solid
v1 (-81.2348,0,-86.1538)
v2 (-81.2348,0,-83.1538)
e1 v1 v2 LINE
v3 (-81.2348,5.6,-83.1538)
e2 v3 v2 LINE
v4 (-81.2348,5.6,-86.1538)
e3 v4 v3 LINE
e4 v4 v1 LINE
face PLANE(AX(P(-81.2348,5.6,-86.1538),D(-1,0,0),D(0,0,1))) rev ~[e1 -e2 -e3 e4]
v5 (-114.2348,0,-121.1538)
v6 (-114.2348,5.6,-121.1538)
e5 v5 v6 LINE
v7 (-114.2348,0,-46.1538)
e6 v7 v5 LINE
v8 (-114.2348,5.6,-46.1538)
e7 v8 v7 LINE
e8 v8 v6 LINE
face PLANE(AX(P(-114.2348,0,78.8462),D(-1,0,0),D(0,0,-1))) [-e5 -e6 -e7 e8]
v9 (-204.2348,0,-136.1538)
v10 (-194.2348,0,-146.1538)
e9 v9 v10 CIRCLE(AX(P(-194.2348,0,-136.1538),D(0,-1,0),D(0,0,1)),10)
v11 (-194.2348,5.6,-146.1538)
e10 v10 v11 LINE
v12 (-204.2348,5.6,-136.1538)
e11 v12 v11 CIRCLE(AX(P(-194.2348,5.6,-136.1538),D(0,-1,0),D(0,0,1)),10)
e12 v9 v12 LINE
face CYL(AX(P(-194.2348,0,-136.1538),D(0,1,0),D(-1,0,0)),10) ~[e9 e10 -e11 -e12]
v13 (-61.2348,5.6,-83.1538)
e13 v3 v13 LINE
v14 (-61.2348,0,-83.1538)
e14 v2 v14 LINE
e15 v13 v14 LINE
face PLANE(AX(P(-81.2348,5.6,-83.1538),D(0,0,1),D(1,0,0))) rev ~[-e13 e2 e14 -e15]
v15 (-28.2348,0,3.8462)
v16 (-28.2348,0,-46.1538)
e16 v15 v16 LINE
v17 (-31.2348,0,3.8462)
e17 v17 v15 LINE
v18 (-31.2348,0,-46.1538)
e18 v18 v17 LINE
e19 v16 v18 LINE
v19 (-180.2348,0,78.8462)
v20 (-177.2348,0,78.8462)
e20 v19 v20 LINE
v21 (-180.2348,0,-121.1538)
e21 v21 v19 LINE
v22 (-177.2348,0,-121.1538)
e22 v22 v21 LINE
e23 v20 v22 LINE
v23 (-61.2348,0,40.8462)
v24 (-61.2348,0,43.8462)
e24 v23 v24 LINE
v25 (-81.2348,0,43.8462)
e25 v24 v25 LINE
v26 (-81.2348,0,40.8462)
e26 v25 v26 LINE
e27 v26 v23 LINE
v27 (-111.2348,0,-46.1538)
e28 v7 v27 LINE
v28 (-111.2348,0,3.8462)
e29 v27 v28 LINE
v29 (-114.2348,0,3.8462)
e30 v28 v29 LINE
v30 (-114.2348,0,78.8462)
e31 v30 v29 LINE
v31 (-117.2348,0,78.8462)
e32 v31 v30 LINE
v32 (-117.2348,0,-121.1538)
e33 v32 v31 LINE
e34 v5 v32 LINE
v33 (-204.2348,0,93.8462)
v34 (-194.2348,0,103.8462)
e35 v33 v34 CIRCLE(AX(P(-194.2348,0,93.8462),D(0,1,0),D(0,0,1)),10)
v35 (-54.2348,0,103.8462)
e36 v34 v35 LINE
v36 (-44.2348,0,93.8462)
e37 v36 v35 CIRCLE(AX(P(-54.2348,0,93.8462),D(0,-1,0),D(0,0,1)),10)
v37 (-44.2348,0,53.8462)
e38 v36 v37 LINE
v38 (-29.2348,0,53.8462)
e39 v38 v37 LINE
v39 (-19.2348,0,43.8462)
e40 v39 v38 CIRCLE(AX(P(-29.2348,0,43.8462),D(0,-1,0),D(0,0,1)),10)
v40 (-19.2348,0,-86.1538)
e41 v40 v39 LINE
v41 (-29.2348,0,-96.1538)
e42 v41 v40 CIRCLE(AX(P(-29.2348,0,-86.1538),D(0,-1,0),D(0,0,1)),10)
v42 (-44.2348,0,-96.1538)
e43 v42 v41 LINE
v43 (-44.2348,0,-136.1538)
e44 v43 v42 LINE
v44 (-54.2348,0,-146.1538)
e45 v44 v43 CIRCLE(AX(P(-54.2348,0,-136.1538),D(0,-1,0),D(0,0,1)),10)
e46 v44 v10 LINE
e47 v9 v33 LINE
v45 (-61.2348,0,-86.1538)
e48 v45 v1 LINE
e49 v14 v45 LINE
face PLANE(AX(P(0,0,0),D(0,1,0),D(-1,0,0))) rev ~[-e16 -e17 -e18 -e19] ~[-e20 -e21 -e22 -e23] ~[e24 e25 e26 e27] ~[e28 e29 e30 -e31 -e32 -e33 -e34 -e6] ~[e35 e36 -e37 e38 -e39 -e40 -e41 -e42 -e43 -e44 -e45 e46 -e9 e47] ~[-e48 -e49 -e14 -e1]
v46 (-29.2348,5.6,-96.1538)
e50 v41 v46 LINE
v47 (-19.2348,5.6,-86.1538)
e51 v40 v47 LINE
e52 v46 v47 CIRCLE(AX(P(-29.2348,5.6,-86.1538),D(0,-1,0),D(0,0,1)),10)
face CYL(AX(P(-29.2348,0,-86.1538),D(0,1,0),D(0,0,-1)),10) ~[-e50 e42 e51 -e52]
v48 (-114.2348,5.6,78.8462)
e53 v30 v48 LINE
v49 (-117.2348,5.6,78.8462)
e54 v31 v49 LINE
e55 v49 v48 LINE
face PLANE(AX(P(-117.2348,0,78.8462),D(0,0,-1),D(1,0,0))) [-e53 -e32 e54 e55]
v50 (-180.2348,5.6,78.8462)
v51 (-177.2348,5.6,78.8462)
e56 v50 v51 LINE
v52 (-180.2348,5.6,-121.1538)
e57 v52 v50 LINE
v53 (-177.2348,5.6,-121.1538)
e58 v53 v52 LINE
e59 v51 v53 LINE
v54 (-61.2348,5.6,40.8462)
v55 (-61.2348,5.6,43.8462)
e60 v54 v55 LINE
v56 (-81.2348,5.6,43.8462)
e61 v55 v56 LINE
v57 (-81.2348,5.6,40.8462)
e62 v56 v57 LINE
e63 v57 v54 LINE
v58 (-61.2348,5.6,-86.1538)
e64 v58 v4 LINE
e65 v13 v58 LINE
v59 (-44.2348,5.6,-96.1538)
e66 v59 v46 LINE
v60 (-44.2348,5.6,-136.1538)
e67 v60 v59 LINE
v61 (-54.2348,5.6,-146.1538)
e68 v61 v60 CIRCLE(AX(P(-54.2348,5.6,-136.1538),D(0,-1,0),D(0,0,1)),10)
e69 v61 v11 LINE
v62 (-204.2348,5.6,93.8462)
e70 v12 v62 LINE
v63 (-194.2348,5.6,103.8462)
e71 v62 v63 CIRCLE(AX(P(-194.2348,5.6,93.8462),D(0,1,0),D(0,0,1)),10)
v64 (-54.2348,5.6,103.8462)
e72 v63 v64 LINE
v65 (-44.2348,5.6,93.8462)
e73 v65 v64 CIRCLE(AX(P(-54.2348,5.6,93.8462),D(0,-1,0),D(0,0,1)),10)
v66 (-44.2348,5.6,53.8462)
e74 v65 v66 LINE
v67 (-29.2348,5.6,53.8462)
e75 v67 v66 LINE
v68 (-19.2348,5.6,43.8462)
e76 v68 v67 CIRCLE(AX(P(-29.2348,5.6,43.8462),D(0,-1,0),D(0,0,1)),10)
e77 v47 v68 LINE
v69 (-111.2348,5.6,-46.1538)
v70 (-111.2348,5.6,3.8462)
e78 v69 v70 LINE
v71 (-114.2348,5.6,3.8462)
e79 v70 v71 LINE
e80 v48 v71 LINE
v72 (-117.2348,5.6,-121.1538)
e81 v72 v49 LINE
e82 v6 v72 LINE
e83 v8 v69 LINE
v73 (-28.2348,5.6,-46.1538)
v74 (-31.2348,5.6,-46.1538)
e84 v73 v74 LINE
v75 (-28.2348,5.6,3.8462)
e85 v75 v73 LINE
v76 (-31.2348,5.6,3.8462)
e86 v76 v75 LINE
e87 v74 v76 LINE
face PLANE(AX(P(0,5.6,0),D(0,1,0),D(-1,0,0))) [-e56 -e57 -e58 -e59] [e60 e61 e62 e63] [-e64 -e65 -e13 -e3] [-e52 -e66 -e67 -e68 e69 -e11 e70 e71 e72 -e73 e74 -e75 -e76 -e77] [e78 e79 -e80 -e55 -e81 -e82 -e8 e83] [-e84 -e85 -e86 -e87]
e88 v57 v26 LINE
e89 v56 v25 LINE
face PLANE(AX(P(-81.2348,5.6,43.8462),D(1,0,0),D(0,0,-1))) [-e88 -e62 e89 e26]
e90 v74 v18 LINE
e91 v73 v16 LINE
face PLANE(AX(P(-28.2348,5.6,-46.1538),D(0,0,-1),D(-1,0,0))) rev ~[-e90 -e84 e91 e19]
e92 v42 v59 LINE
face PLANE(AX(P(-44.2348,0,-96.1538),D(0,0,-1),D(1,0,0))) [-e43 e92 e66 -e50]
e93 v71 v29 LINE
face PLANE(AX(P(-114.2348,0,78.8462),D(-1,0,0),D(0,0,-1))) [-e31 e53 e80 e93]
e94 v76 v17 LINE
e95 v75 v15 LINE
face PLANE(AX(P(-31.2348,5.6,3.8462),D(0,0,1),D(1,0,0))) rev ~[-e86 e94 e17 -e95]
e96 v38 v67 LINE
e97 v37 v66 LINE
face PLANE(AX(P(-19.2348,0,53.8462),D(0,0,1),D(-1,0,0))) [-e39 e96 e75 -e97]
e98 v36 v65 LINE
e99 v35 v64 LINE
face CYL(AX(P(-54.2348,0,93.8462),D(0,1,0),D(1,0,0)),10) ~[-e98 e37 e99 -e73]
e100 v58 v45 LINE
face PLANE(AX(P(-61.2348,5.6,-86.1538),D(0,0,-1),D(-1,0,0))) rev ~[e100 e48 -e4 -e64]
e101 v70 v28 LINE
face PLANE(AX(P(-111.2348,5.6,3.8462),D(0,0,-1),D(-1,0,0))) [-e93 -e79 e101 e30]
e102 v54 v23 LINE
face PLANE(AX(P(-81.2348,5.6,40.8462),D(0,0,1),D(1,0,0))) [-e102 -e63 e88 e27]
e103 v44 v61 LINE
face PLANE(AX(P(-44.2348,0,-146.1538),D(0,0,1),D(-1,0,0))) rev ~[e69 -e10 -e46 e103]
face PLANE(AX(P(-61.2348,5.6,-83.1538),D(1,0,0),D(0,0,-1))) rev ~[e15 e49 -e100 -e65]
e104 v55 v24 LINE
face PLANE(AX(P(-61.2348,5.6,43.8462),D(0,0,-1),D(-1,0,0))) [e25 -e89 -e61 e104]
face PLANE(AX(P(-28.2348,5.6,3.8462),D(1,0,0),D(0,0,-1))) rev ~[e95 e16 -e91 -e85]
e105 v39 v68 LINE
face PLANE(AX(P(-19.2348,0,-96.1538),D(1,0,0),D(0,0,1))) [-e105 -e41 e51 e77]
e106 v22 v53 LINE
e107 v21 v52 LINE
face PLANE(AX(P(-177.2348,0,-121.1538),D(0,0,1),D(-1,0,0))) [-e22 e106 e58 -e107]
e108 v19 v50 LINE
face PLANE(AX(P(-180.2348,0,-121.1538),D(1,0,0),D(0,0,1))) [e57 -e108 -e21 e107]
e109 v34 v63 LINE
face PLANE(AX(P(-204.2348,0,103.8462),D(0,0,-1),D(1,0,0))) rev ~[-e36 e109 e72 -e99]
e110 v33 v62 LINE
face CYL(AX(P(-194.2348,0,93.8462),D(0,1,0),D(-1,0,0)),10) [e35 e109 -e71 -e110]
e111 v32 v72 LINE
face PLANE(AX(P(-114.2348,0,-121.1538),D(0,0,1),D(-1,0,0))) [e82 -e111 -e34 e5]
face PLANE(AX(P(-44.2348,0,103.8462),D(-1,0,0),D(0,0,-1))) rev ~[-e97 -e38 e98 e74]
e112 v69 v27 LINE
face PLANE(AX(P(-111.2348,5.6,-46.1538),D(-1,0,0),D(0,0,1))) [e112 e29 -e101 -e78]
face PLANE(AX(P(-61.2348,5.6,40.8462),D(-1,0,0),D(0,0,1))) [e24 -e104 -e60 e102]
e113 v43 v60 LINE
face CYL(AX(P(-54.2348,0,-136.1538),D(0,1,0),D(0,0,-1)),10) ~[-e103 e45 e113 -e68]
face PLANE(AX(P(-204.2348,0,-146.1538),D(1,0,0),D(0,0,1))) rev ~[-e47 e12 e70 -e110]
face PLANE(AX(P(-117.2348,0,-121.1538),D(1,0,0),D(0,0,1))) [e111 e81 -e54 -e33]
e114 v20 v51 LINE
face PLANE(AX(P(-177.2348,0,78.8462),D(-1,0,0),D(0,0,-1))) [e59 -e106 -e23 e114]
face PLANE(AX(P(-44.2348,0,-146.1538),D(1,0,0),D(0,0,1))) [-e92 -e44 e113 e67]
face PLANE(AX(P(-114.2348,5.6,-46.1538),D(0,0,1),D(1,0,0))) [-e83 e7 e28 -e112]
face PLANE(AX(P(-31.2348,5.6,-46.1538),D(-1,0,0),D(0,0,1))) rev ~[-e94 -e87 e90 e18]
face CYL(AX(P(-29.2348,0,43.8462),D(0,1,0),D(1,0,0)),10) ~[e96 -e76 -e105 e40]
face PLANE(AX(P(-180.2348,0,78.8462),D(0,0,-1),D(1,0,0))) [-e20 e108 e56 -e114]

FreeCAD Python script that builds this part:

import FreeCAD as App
import Part
import Sketcher
Q = App.Units.Quantity


def edges_at(feature, points):
    """Names of the edges that pass closest to the given points."""
    edges = feature.Shape.Edges
    near = lambda p: min(range(len(edges)), key=lambda i: edges[i].distToShape(Part.Vertex(*p))[0])
    return sorted({f"Edge{near(p) + 1}" for p in points})

doc = App.newDocument("Part")
params = doc.addObject("Spreadsheet::Sheet", "Params")
for row, (alias, value) in enumerate([
    ("sketch1_width", "160 mm"),
    ("sketch1_width2", "25 mm"),
    ("sketch1_width3", "3 mm"),
    ("sketch1_height", "250 mm"),
    ("sketch1_height2", "150 mm"),
    ("pad1_length", "5.6 mm"),
    ("fillet_radius", "10 mm"),
    ("sketch2_width", "3 mm"),
    ("sketch2_width2", "20 mm"),
    ("sketch2_height", "50 mm"),
    ("pocket1_length", "10 mm"),
], start=1):
    params.set(f"A{row}", alias)
    params.set(f"B{row}", "=" + value)
    params.setAlias(f"B{row}", alias)

body = doc.addObject("PartDesign::Body", "Body")

sketch1 = body.newObject("Sketcher::SketchObject", "Sketch")
sketch1.AttachmentSupport = (doc.getObject("XZ_Plane"), [""])
sketch1.MapMode = "FlatFace"
sketch1.addGeometry([
    Part.LineSegment(App.Vector(-204.2, -146.2, 0), App.Vector(-204.2, 103.8, 0)),
    Part.LineSegment(App.Vector(-204.2, 103.8, 0), App.Vector(-44.2, 103.8, 0)),
    Part.LineSegment(App.Vector(-44.2, 103.8, 0), App.Vector(-44.2, 53.8, 0)),
    Part.LineSegment(App.Vector(-44.2, 53.8, 0), App.Vector(-19.2, 53.8, 0)),
    Part.LineSegment(App.Vector(-19.2, 53.8, 0), App.Vector(-19.2, -96.2, 0)),
    Part.LineSegment(App.Vector(-19.2, -96.2, 0), App.Vector(-44.2, -96.2, 0)),
    Part.LineSegment(App.Vector(-44.2, -96.2, 0), App.Vector(-44.2, -146.2, 0)),
    Part.LineSegment(App.Vector(-44.2, -146.2, 0), App.Vector(-204.2, -146.2, 0)),
    Part.LineSegment(App.Vector(-114.2, 78.8, 0), App.Vector(-117.2, 78.8, 0)),
    Part.LineSegment(App.Vector(-117.2, 78.8, 0), App.Vector(-117.2, -121.2, 0)),
    Part.LineSegment(App.Vector(-117.2, -121.2, 0), App.Vector(-114.2, -121.2, 0)),
    Part.LineSegment(App.Vector(-114.2, -121.2, 0), App.Vector(-114.2, 78.8, 0)),
    Part.LineSegment(App.Vector(-177.2, 78.8, 0), App.Vector(-180.2, 78.8, 0)),
    Part.LineSegment(App.Vector(-180.2, 78.8, 0), App.Vector(-180.2, -121.2, 0)),
    Part.LineSegment(App.Vector(-180.2, -121.2, 0), App.Vector(-177.2, -121.2, 0)),
    Part.LineSegment(App.Vector(-177.2, -121.2, 0), App.Vector(-177.2, 78.8, 0)),
], False)
sketch1.addConstraint([
    Sketcher.Constraint("Coincident", 0, 2, 1, 1),
    Sketcher.Constraint("Coincident", 1, 2, 2, 1),
    Sketcher.Constraint("Coincident", 2, 2, 3, 1),
    Sketcher.Constraint("Coincident", 3, 2, 4, 1),
    Sketcher.Constraint("Coincident", 4, 2, 5, 1),
    Sketcher.Constraint("Coincident", 5, 2, 6, 1),
    Sketcher.Constraint("Coincident", 6, 2, 7, 1),
    Sketcher.Constraint("Coincident", 7, 2, 0, 1),
    Sketcher.Constraint("Coincident", 8, 2, 9, 1),
    Sketcher.Constraint("Coincident", 9, 2, 10, 1),
    Sketcher.Constraint("Coincident", 10, 2, 11, 1),
    Sketcher.Constraint("Coincident", 11, 2, 8, 1),
    Sketcher.Constraint("Coincident", 12, 2, 13, 1),
    Sketcher.Constraint("Coincident", 13, 2, 14, 1),
    Sketcher.Constraint("Coincident", 14, 2, 15, 1),
    Sketcher.Constraint("Coincident", 15, 2, 12, 1),
    Sketcher.Constraint("Vertical", 0),
    Sketcher.Constraint("Horizontal", 1),
    Sketcher.Constraint("Vertical", 2),
    Sketcher.Constraint("Horizontal", 3),
    Sketcher.Constraint("Vertical", 4),
    Sketcher.Constraint("Horizontal", 5),
    Sketcher.Constraint("Vertical", 6),
    Sketcher.Constraint("Horizontal", 7),
    Sketcher.Constraint("Horizontal", 8),
    Sketcher.Constraint("Vertical", 9),
    Sketcher.Constraint("Horizontal", 10),
    Sketcher.Constraint("Vertical", 11),
    Sketcher.Constraint("Horizontal", 12),
    Sketcher.Constraint("Vertical", 13),
    Sketcher.Constraint("Horizontal", 14),
    Sketcher.Constraint("Vertical", 15),
    Sketcher.Constraint("Horizontal", 11, 2, 12, 2),
    Sketcher.Constraint("Horizontal", 10, 2, 13, 2),
    Sketcher.Constraint("Vertical", 2, 2, 5, 2),
    Sketcher.Constraint("Equal", 10, 12),
    Sketcher.Constraint("Equal", 2, 6),
    Sketcher.Constraint("DistanceX", 1, 1, 1, 2, Q("160 mm")),
    Sketcher.Constraint("DistanceX", 3, 1, 3, 2, Q("25 mm")),
    Sketcher.Constraint("DistanceX", 8, 2, 8, 1, Q("3 mm")),
    Sketcher.Constraint("DistanceY", 0, 1, 0, 2, Q("250 mm")),
    Sketcher.Constraint("DistanceY", 4, 2, 4, 1, Q("150 mm")),
    Sketcher.Constraint("DistanceY", 9, 2, 9, 1, Q("200 mm")),
    Sketcher.Constraint("DistanceY", 8, 2, 1, 2, Q("25 mm")),
    Sketcher.Constraint("DistanceX", 10, 2, 5, 2, Q("70 mm")),
    Sketcher.Constraint("DistanceX", 14, 2, 9, 2, Q("60 mm")),
    Sketcher.Constraint("DistanceX", 0, 2, -1, 1, Q("204.2348 mm")),
    Sketcher.Constraint("DistanceY", -1, 1, 0, 2, Q("103.8462 mm")),
])
sketch1.setExpression("Constraints[37]", "Params.sketch1_width")
sketch1.setExpression("Constraints[38]", "Params.sketch1_width2")
sketch1.setExpression("Constraints[39]", "Params.sketch1_width3")
sketch1.setExpression("Constraints[40]", "Params.sketch1_height")
sketch1.setExpression("Constraints[41]", "Params.sketch1_height2")
pad1 = body.newObject("PartDesign::Pad", "Pad")
pad1.Profile = sketch1
pad1.setExpression("Length", "Params.pad1_length")
pad1.Reversed = True
doc.recompute()

fillet = body.newObject("PartDesign::Fillet", "Fillet")
fillet.Base = (pad1, edges_at(pad1, [
    (-19.235, 2.8, 53.846),
    (-19.235, 2.8, -96.154),
    (-44.235, 2.8, 103.846),
    (-44.235, 2.8, -146.154),
    (-204.235, 2.8, -146.154),
    (-204.235, 2.8, 103.846),
]))
fillet.setExpression("Radius", "Params.fillet_radius")

sketch2 = body.newObject("Sketcher::SketchObject", "Sketch001")
sketch2.AttachmentSupport = (doc.getObject("XZ_Plane"), [""])
sketch2.MapMode = "FlatFace"
sketch2.AttachmentOffset = App.Placement(App.Vector(0, 0, -5.6), App.Rotation())
sketch2.addGeometry([
    Part.LineSegment(App.Vector(-111.2, -46.2, 0), App.Vector(-114.2, -46.2, 0)),
    Part.LineSegment(App.Vector(-114.2, -46.2, 0), App.Vector(-114.2, 3.8, 0)),
    Part.LineSegment(App.Vector(-114.2, 3.8, 0), App.Vector(-111.2, 3.8, 0)),
    Part.LineSegment(App.Vector(-111.2, 3.8, 0), App.Vector(-111.2, -46.2, 0)),
    Part.LineSegment(App.Vector(-61.2, -86.2, 0), App.Vector(-81.2, -86.2, 0)),
    Part.LineSegment(App.Vector(-81.2, -86.2, 0), App.Vector(-81.2, -83.2, 0)),
    Part.LineSegment(App.Vector(-81.2, -83.2, 0), App.Vector(-61.2, -83.2, 0)),
    Part.LineSegment(App.Vector(-61.2, -83.2, 0), App.Vector(-61.2, -86.2, 0)),
    Part.LineSegment(App.Vector(-81.2, 43.8, 0), App.Vector(-61.2, 43.8, 0)),
    Part.LineSegment(App.Vector(-61.2, 43.8, 0), App.Vector(-61.2, 40.8, 0)),
    Part.LineSegment(App.Vector(-61.2, 40.8, 0), App.Vector(-81.2, 40.8, 0)),
    Part.LineSegment(App.Vector(-81.2, 40.8, 0), App.Vector(-81.2, 43.8, 0)),
    Part.LineSegment(App.Vector(-28.2, -46.2, 0), App.Vector(-31.2, -46.2, 0)),
    Part.LineSegment(App.Vector(-31.2, -46.2, 0), App.Vector(-31.2, 3.8, 0)),
    Part.LineSegment(App.Vector(-31.2, 3.8, 0), App.Vector(-28.2, 3.8, 0)),
    Part.LineSegment(App.Vector(-28.2, 3.8, 0), App.Vector(-28.2, -46.2, 0)),
], False)
sketch2.addConstraint([
    Sketcher.Constraint("Coincident", 0, 2, 1, 1),
    Sketcher.Constraint("Coincident", 1, 2, 2, 1),
    Sketcher.Constraint("Coincident", 2, 2, 3, 1),
    Sketcher.Constraint("Coincident", 3, 2, 0, 1),
    Sketcher.Constraint("Coincident", 4, 2, 5, 1),
    Sketcher.Constraint("Coincident", 5, 2, 6, 1),
    Sketcher.Constraint("Coincident", 6, 2, 7, 1),
    Sketcher.Constraint("Coincident", 7, 2, 4, 1),
    Sketcher.Constraint("Coincident", 8, 2, 9, 1),
    Sketcher.Constraint("Coincident", 9, 2, 10, 1),
    Sketcher.Constraint("Coincident", 10, 2, 11, 1),
    Sketcher.Constraint("Coincident", 11, 2, 8, 1),
    Sketcher.Constraint("Coincident", 12, 2, 13, 1),
    Sketcher.Constraint("Coincident", 13, 2, 14, 1),
    Sketcher.Constraint("Coincident", 14, 2, 15, 1),
    Sketcher.Constraint("Coincident", 15, 2, 12, 1),
    Sketcher.Constraint("Horizontal", 0),
    Sketcher.Constraint("Vertical", 1),
    Sketcher.Constraint("Horizontal", 2),
    Sketcher.Constraint("Vertical", 3),
    Sketcher.Constraint("Horizontal", 4),
    Sketcher.Constraint("Vertical", 5),
    Sketcher.Constraint("Horizontal", 6),
    Sketcher.Constraint("Vertical", 7),
    Sketcher.Constraint("Horizontal", 8),
    Sketcher.Constraint("Vertical", 9),
    Sketcher.Constraint("Horizontal", 10),
    Sketcher.Constraint("Vertical", 11),
    Sketcher.Constraint("Horizontal", 12),
    Sketcher.Constraint("Vertical", 13),
    Sketcher.Constraint("Horizontal", 14),
    Sketcher.Constraint("Vertical", 15),
    Sketcher.Constraint("Horizontal", 3, 2, 12, 2),
    Sketcher.Constraint("Horizontal", 2, 2, 13, 2),
    Sketcher.Constraint("Vertical", 7, 2, 8, 2),
    Sketcher.Constraint("Vertical", 5, 2, 10, 2),
    Sketcher.Constraint("Equal", 2, 12),
    Sketcher.Constraint("Equal", 14, 5),
    Sketcher.Constraint("Equal", 7, 9),
    Sketcher.Constraint("DistanceX", 0, 2, 0, 1, Q("3 mm")),
    Sketcher.Constraint("DistanceX", 4, 2, 4, 1, Q("20 mm")),
    Sketcher.Constraint("DistanceY", 1, 1, 1, 2, Q("50 mm")),
    Sketcher.Constraint("DistanceX", 3, 2, 6, 2, Q("50 mm")),
    Sketcher.Constraint("DistanceX", 5, 2, 12, 2, Q("50 mm")),
    Sketcher.Constraint("DistanceY", 4, 2, 3, 2, Q("40 mm")),
    Sketcher.Constraint("DistanceY", 2, 2, 8, 2, Q("40 mm")),
    Sketcher.Constraint("DistanceX", 0, 2, -1, 1, Q("114.2348 mm")),
    Sketcher.Constraint("DistanceY", 0, 2, -1, 1, Q("46.1538 mm")),
])
sketch2.setExpression("Constraints[39]", "Params.sketch2_width")
sketch2.setExpression("Constraints[40]", "Params.sketch2_width2")
sketch2.setExpression("Constraints[41]", "Params.sketch2_height")
pocket1 = body.newObject("PartDesign::Pocket", "Pocket")
pocket1.Profile = sketch2
pocket1.setExpression("Length", "Params.pocket1_length")
pocket1.Reversed = True

doc.recompute()
